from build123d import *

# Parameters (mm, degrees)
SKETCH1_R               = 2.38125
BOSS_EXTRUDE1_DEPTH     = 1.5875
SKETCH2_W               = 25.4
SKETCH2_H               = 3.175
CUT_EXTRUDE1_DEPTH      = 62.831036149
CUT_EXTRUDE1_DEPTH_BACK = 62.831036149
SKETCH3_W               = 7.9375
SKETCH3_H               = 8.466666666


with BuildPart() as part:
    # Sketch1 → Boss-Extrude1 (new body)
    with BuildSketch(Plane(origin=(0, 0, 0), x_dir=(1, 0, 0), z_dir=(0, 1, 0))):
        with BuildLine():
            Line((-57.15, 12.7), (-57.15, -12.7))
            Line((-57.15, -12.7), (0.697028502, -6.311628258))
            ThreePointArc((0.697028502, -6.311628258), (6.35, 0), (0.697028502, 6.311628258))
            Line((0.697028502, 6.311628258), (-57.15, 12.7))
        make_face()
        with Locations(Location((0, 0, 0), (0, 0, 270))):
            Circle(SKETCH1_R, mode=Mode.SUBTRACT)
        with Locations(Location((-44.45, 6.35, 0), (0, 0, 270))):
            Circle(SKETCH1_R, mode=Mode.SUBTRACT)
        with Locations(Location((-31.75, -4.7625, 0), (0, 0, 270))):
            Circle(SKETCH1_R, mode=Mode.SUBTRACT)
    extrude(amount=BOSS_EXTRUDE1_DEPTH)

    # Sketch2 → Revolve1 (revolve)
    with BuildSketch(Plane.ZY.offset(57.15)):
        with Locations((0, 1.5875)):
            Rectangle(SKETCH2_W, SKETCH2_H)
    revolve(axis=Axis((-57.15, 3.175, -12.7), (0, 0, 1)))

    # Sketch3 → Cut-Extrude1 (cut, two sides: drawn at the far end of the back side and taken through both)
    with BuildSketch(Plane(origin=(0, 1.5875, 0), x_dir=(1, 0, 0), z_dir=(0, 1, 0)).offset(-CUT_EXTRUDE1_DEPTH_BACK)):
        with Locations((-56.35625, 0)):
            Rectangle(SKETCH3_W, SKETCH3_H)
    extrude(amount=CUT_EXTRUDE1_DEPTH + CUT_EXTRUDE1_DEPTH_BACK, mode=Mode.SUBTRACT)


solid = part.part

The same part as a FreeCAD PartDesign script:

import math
import FreeCAD as App
import Part
import Sketcher
Q = App.Units.Quantity

doc = App.newDocument("Part")
body = doc.addObject("PartDesign::Body", "Body")

# Sketch on XZ plane
sketch1 = body.newObject("Sketcher::SketchObject", "Sketch")
sketch1.AttachmentSupport = (doc.getObject("XZ_Plane"), [""])
sketch1.MapMode = "FlatFace"
sketch1.addGeometry([
    Part.LineSegment(App.Vector(-57.1, -12.7, 0), App.Vector(-57.1, 12.7, 0)),  # 0
    Part.LineSegment(App.Vector(-57.1, 12.7, 0), App.Vector(0.7, 6.3, 0)),  # 1
    Part.ArcOfCircle(Part.Circle(App.Vector(0, 0, 0), App.Vector(0, 0, 1), 6.3), math.radians(-84), math.radians(84)),  # 2
    Part.LineSegment(App.Vector(0.7, -6.3, 0), App.Vector(-57.1, -12.7, 0)),  # 3
    Part.Circle(App.Vector(-31.8, 4.8, 0), App.Vector(0, 0, 1), 2.4),  # 4
    Part.Circle(App.Vector(0, 0, 0), App.Vector(0, 0, 1), 2.4),  # 5
    Part.Circle(App.Vector(-44.5, -6.3, 0), App.Vector(0, 0, 1), 2.4),  # 6
], False)
sketch1.addConstraint([
    Sketcher.Constraint("Coincident", 0, 2, 1, 1),
    Sketcher.Constraint("Tangent", 1, 2, 2, 2),
    Sketcher.Constraint("Tangent", 2, 1, 3, 1),
    Sketcher.Constraint("Coincident", 3, 2, 0, 1),
    Sketcher.Constraint("Vertical", 0),
    Sketcher.Constraint("Coincident", 2, 3, -1, 1),
    Sketcher.Constraint("Coincident", 5, 3, -1, 1),
    Sketcher.Constraint("Equal", 4, 5),
    Sketcher.Constraint("Equal", 5, 6),
    Sketcher.Constraint("Vertical", 1, 2, 2, 1),
    Sketcher.Constraint("DistanceY", 0, 1, 0, 2, Q("1 in")),
    Sketcher.Constraint("Radius", 2, Q("0.25 in")),
    Sketcher.Constraint("Diameter", 4, Q("0.1875 in")),
    Sketcher.Constraint("DistanceX", 0, 2, 4, 3, Q("1 in")),
    Sketcher.Constraint("DistanceX", 6, 3, 4, 3, Q("0.5 in")),
    Sketcher.Constraint("DistanceX", 4, 3, -1, 1, Q("1.25 in")),
    Sketcher.Constraint("DistanceY", 6, 3, -1, 1, Q("0.25 in")),
    Sketcher.Constraint("DistanceY", -1, 1, 4, 3, Q("0.1875 in")),
])
pad1 = body.newObject("PartDesign::Pad", "Pad")
pad1.Profile = sketch1
pad1.Length = Q("0.0625 in")
pad1.Reversed = True

# Sketch on YZ plane
sketch2 = body.newObject("Sketcher::SketchObject", "Sketch001")
sketch2.AttachmentSupport = (doc.getObject("YZ_Plane"), [""])
sketch2.MapMode = "FlatFace"
sketch2.AttachmentOffset = App.Placement(App.Vector(0, 0, -2.25 * 25.4), App.Rotation())
sketch2.addGeometry([
    Part.LineSegment(App.Vector(3.2, -12.7, 0), App.Vector(0, -12.7, 0)),
    Part.LineSegment(App.Vector(0, -12.7, 0), App.Vector(0, 12.7, 0)),
    Part.LineSegment(App.Vector(0, 12.7, 0), App.Vector(3.2, 12.7, 0)),
    Part.LineSegment(App.Vector(3.2, 12.7, 0), App.Vector(3.2, -12.7, 0)),
], False)
sketch2.addGeometry(Part.LineSegment(App.Vector(3.2, -12.7, 0), App.Vector(3.2, 12.7, 0)), True)  # axis
sketch2.addConstraint([
    Sketcher.Constraint("Coincident", 0, 2, 1, 1),
    Sketcher.Constraint("Coincident", 1, 2, 2, 1),
    Sketcher.Constraint("Coincident", 2, 2, 3, 1),
    Sketcher.Constraint("Coincident", 3, 2, 0, 1),
    Sketcher.Constraint("Horizontal", 0),
    Sketcher.Constraint("Vertical", 1),
    Sketcher.Constraint("Horizontal", 2),
    Sketcher.Constraint("Vertical", 3),
    Sketcher.Constraint("Vertical", 4),
    Sketcher.Constraint("Coincident", 4, 1, 3, 2),
    Sketcher.Constraint("Symmetric", 0, 2, 1, 2, -1, 1),
    Sketcher.Constraint("Horizontal", 1, 2, 4, 2),
    Sketcher.Constraint("DistanceY", 1, 1, 1, 2, Q("1 in")),
    Sketcher.Constraint("DistanceX", 0, 2, 0, 1, Q("0.125 in")),
])
revolution = body.newObject("PartDesign::Revolution", "Revolution")
revolution.Profile = sketch2
revolution.ReferenceAxis = (sketch2, ["Axis0"])
revolution.Angle = 360

# Sketch on XZ plane
sketch3 = body.newObject("Sketcher::SketchObject", "Sketch002")
sketch3.AttachmentSupport = (doc.getObject("XZ_Plane"), [""])
sketch3.MapMode = "FlatFace"
sketch3.AttachmentOffset = App.Placement(App.Vector(0, 0, -0.0625 * 25.4), App.Rotation())
sketch3.addGeometry([
    Part.LineSegment(App.Vector(-60, -4, 0), App.Vector(-60, 4, 0)),
    Part.LineSegment(App.Vector(-60, 4, 0), App.Vector(-52, 4, 0)),
    Part.LineSegment(App.Vector(-52, 4, 0), App.Vector(-52, -4, 0)),
    Part.LineSegment(App.Vector(-52, -4, 0), App.Vector(-60, -4, 0)),
], False)
sketch3.addConstraint([
    Sketcher.Constraint("Coincident", 0, 2, 1, 1),
    Sketcher.Constraint("Coincident", 1, 2, 2, 1),
    Sketcher.Constraint("Coincident", 2, 2, 3, 1),
    Sketcher.Constraint("Coincident", 3, 2, 0, 1),
    Sketcher.Constraint("Vertical", 0),
    Sketcher.Constraint("Horizontal", 1),
    Sketcher.Constraint("Vertical", 2),
    Sketcher.Constraint("Horizontal", 3),
    Sketcher.Constraint("DistanceX", 1, 1, 1, 2, Q("0.3125 in")),
    Sketcher.Constraint("DistanceX", 0, 2, -1, 1, Q("2.375 in")),
    Sketcher.Constraint("DistanceY", 0, 1, 0, 2, 8.466667),
    Sketcher.Constraint("DistanceY", -1, 1, 0, 2, 4.233333),
])
pocket1 = body.newObject("PartDesign::Pocket", "Pocket")
pocket1.Profile = sketch3
pocket1.Type = "ThroughAll"
pocket1.Midplane = True

doc.recompute()
